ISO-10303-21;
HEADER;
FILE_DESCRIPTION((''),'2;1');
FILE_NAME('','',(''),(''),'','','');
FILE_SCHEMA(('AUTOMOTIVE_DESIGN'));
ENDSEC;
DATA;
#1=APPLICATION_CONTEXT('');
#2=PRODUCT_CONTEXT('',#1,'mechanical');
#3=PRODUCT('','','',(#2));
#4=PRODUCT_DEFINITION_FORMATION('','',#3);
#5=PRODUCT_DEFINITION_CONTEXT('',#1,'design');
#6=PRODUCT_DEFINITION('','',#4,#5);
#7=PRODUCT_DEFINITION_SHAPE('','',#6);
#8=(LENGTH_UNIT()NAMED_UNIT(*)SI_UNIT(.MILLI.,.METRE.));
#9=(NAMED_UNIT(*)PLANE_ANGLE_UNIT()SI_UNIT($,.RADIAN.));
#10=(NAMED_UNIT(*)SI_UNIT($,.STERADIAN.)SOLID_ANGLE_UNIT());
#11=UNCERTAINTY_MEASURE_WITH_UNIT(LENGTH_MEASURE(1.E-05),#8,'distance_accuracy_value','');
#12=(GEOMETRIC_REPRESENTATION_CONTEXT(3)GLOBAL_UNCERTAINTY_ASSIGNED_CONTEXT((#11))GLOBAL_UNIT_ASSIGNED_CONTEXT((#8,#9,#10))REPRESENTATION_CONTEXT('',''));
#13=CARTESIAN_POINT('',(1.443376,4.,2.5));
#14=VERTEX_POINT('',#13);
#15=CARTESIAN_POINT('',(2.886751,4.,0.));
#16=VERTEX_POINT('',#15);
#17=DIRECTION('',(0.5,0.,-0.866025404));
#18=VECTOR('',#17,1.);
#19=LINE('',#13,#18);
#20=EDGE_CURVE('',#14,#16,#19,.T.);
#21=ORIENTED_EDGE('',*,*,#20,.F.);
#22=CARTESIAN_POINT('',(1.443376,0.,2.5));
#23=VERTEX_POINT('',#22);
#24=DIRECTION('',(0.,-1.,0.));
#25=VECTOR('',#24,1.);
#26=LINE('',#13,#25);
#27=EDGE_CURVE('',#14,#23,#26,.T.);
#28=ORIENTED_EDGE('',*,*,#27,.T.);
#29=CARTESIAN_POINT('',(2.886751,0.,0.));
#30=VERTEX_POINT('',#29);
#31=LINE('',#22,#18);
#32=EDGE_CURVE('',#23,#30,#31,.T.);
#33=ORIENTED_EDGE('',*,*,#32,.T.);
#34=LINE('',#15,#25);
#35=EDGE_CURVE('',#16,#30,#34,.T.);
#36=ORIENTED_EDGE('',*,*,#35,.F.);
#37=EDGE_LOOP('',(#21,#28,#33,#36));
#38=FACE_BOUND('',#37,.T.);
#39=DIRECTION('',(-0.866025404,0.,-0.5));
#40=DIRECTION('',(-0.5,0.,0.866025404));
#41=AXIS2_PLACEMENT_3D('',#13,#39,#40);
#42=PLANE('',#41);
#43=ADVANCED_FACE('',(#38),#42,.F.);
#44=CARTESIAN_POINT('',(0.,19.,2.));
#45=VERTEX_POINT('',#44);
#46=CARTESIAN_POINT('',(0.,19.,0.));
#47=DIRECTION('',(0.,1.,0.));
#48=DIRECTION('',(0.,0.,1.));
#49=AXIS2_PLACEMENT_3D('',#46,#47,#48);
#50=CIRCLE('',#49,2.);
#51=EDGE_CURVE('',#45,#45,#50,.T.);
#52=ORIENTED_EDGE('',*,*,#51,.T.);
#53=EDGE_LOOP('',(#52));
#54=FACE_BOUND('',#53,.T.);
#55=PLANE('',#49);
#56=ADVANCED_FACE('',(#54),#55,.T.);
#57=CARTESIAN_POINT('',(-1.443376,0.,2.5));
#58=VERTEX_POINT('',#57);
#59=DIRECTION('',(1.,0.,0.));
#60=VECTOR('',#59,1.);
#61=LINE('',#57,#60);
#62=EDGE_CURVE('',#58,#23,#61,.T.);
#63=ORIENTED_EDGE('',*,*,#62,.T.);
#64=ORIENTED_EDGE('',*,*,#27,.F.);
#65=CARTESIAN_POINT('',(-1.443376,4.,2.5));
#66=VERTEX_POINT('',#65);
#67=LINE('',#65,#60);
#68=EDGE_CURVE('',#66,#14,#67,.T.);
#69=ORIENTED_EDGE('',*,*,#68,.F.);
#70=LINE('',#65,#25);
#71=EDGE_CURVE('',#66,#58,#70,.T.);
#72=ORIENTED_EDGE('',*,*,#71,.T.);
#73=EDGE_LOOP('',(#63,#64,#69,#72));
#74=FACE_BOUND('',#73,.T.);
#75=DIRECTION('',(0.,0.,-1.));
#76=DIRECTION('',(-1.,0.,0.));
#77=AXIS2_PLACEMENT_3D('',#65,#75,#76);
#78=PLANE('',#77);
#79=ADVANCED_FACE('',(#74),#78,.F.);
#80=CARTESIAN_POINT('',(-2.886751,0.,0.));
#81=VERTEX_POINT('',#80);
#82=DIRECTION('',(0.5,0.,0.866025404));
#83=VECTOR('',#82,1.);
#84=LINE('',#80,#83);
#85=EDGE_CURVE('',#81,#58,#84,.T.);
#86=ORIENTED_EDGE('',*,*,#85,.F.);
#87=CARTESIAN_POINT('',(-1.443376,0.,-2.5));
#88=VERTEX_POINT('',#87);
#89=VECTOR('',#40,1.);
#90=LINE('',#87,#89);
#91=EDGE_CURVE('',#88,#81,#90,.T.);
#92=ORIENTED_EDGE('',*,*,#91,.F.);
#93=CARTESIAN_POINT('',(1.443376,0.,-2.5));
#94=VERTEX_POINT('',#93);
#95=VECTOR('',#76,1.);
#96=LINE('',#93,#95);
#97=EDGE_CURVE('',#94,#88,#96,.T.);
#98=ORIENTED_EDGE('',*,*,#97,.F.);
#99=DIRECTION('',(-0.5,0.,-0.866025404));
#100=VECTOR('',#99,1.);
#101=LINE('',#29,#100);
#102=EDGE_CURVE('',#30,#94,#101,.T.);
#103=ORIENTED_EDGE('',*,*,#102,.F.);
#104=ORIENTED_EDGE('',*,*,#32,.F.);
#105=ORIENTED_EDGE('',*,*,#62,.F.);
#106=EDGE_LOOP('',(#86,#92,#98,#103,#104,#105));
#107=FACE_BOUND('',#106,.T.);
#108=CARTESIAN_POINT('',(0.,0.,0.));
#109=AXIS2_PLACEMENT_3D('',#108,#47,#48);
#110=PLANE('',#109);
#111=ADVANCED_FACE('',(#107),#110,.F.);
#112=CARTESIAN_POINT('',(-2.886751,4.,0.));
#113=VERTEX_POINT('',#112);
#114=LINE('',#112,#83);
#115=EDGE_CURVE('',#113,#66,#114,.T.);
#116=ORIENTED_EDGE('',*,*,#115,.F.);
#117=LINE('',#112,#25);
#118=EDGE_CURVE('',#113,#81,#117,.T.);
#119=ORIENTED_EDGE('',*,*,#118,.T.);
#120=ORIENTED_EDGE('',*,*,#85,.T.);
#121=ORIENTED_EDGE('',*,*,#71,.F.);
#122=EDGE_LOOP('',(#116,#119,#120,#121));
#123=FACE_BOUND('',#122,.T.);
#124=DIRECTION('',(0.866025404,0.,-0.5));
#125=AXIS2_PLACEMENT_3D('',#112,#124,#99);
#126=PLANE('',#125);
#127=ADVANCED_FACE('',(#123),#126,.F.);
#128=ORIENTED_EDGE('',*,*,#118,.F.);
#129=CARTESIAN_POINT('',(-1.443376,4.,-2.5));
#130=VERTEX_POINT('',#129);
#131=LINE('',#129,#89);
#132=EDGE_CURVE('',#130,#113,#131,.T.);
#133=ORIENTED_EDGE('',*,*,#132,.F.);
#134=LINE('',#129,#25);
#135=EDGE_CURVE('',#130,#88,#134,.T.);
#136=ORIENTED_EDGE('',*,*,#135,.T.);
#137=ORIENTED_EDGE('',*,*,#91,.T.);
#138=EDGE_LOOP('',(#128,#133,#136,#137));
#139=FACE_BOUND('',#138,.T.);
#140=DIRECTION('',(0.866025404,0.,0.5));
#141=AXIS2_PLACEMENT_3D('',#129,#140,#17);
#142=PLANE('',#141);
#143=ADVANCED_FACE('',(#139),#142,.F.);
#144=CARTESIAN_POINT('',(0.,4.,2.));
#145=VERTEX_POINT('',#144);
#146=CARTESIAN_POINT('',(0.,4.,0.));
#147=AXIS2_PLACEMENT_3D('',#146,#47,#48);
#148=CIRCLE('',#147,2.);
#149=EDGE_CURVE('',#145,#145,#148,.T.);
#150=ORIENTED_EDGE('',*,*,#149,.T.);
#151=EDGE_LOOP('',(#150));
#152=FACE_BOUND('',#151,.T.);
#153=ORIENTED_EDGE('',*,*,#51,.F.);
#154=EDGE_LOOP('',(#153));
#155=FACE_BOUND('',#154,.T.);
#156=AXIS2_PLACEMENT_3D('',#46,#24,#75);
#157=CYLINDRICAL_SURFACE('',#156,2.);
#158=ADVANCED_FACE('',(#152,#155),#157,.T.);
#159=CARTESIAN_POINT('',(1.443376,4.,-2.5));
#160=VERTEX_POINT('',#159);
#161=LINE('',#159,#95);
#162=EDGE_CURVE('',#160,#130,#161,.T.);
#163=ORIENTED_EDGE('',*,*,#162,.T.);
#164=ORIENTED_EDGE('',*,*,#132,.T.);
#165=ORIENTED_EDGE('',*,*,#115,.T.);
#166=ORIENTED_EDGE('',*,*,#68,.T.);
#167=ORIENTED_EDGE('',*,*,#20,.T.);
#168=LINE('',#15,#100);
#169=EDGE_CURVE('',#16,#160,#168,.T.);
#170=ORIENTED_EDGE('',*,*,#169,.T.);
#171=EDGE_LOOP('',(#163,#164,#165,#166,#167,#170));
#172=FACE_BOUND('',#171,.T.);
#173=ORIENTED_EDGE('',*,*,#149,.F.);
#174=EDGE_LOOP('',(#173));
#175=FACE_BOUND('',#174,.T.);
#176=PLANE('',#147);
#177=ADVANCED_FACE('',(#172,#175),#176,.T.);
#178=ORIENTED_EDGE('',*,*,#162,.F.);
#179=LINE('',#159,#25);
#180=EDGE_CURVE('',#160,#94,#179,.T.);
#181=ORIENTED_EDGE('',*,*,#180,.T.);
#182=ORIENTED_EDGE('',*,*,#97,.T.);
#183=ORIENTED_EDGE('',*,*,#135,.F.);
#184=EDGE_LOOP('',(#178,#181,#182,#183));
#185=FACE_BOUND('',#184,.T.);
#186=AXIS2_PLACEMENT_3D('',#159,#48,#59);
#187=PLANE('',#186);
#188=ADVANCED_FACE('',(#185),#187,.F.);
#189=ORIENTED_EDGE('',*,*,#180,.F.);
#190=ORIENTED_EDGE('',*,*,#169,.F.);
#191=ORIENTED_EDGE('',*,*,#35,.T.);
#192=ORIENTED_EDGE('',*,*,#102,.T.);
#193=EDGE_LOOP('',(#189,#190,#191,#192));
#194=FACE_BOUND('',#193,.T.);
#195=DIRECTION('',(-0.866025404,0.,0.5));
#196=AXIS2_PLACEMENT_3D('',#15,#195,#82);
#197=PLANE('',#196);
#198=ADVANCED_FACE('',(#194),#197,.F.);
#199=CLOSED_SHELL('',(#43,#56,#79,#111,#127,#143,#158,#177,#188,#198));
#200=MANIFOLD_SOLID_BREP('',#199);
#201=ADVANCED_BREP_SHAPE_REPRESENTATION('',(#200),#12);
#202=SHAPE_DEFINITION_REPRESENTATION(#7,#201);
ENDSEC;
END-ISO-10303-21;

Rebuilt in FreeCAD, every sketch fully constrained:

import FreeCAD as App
import Part
import Sketcher

V = App.Vector
Q = App.Units.Quantity


def add_polygon(sketch, points):
    """Adds a closed chain of lines whose ends are joined by coincident constraints."""
    first, n = sketch.GeometryCount, len(points)
    for a, b in zip(points, points[1:] + points[:1]):
        sketch.addGeometry(Part.LineSegment(App.Vector(*a, 0), App.Vector(*b, 0)), False)
    for i in range(n):
        sketch.addConstraint(Sketcher.Constraint("Coincident", first + i, 2, first + (i + 1) % n, 1))

doc = App.newDocument("Part")
body = doc.addObject("PartDesign::Body", "Body")

# Sketch on XZ plane
sketch1 = body.newObject("Sketcher::SketchObject", "Sketch")
sketch1.AttachmentSupport = (doc.getObject("XZ_Plane"), [""])
sketch1.MapMode = "FlatFace"
add_polygon(sketch1, [(2.9, 0), (1.4, -2.5), (-1.4, -2.5), (-2.9, 0), (-1.4, 2.5), (1.4, 2.5)])  # lines 0-5
sketch1.addConstraint([
    Sketcher.Constraint("Horizontal", 1),
    Sketcher.Constraint("Horizontal", 4),
    Sketcher.Constraint("Symmetric", 0, 2, 3, 2, -1, 1),
    Sketcher.Constraint("Symmetric", 2, 2, 5, 2, -1, 1),
    Sketcher.Constraint("PointOnObject", 2, 2, -1),
    Sketcher.Constraint("Parallel", 2, 5),
    Sketcher.Constraint("Vertical", 1, 2, 3, 2),
    Sketcher.Constraint("Angle", 0, Q("-120 deg")),
    Sketcher.Constraint("DistanceY", 1, 2, 3, 2, 5.0),
    Sketcher.Constraint("DistanceX", 1, 2, 1, 1, 2.886751),
])
pad1 = body.newObject("PartDesign::Pad", "Pad")
pad1.Profile = sketch1
pad1.Length = 4
pad1.Reversed = True

# Sketch on XZ plane
sketch2 = body.newObject("Sketcher::SketchObject", "Sketch001")
sketch2.AttachmentSupport = (doc.getObject("XZ_Plane"), [""])
sketch2.MapMode = "FlatFace"
sketch2.AttachmentOffset = App.Placement(V(0, 0, -4), App.Rotation())
sketch2.addGeometry(Part.Circle(V(0, 0, 0), V(0, 0, 1), 2), False)
sketch2.addConstraint([
    Sketcher.Constraint("Coincident", 0, 3, -1, 1),
    Sketcher.Constraint("Diameter", 0, 4.0),
])
pad2 = body.newObject("PartDesign::Pad", "Pad001")
pad2.Profile = sketch2
pad2.Length = 15
pad2.Reversed = True

doc.recompute()
